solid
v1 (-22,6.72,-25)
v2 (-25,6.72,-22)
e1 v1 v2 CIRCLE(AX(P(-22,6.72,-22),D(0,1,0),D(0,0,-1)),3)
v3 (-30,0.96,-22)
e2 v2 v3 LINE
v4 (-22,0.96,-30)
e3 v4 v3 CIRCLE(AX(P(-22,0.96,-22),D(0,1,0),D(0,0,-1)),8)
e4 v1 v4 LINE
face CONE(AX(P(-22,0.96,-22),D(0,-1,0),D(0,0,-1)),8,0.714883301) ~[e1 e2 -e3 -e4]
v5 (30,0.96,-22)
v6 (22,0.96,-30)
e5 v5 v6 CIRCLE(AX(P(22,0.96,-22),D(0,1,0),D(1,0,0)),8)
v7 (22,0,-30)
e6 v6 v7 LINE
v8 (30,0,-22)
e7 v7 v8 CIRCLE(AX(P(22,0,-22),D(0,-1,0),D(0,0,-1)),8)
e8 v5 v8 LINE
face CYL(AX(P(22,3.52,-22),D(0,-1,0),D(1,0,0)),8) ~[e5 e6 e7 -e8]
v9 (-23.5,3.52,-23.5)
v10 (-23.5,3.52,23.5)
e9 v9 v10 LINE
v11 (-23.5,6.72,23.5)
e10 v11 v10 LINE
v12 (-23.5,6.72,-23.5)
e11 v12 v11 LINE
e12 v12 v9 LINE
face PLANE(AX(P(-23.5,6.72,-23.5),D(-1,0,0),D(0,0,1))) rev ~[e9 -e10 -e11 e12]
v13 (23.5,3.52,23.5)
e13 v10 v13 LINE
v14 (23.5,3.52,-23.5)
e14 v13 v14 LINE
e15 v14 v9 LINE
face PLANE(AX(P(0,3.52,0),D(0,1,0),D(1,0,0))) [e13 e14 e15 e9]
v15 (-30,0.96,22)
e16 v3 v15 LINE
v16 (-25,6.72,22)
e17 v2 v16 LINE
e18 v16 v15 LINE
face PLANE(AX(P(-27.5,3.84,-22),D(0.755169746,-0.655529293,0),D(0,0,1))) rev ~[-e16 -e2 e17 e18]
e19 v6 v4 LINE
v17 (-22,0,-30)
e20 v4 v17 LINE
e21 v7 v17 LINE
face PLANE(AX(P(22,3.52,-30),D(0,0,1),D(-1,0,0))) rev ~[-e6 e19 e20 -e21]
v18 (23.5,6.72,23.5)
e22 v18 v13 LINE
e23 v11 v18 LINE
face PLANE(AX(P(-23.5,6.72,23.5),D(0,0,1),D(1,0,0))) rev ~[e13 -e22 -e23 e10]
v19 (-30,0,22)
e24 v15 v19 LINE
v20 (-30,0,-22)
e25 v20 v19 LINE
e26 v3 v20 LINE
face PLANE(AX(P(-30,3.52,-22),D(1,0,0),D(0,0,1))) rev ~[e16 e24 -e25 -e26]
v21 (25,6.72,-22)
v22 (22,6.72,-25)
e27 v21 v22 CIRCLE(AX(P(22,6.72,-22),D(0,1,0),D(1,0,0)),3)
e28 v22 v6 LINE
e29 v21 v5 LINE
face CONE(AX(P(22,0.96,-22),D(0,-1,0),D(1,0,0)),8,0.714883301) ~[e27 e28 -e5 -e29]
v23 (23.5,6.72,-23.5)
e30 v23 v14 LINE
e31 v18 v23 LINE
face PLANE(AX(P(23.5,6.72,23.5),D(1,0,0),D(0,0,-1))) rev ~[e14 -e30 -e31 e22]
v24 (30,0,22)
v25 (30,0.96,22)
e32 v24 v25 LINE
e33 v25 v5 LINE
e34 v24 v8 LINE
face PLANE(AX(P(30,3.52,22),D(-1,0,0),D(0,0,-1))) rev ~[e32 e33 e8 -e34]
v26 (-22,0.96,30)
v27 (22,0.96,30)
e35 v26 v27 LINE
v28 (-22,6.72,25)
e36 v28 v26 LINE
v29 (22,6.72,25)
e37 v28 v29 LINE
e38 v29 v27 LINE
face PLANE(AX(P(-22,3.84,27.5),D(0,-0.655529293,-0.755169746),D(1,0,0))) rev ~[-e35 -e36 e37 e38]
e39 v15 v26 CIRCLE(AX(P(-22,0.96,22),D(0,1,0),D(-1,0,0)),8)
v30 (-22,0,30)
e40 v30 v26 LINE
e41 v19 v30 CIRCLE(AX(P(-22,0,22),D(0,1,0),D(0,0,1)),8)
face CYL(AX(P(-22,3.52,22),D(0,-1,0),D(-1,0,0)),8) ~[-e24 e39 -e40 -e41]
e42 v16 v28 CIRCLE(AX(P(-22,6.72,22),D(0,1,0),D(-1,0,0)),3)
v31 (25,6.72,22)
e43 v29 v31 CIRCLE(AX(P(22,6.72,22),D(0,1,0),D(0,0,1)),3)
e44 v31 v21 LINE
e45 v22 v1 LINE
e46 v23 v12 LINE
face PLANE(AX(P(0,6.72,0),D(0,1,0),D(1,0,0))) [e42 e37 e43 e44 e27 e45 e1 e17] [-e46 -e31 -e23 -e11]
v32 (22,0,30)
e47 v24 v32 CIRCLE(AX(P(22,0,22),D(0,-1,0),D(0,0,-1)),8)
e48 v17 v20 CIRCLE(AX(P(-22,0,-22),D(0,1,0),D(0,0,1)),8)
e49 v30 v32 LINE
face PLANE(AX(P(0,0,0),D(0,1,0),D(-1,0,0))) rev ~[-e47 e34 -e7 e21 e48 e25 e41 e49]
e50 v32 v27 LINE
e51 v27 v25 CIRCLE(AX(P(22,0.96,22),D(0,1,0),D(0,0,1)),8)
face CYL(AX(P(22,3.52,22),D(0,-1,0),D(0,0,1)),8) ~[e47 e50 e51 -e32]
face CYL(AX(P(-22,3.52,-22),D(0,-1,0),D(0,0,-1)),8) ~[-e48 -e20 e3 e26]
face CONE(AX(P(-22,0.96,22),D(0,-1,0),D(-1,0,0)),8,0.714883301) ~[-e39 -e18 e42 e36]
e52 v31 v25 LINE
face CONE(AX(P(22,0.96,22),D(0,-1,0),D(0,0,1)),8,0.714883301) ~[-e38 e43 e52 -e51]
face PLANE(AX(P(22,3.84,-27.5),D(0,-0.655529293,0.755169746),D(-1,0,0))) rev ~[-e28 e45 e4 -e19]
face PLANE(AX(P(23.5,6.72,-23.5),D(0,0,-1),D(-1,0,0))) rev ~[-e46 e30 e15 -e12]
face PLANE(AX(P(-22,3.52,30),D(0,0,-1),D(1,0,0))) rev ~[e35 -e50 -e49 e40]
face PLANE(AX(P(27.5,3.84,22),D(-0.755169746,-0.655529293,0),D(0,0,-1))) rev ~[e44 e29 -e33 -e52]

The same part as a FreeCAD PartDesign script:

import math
import FreeCAD as App
import Part
import Sketcher
from FreeCAD import Vector
Q = App.Units.Quantity


def edges_at(feature, points):
    """Names of the edges that pass closest to the given points."""
    edges = feature.Shape.Edges
    near = lambda p: min(range(len(edges)), key=lambda i: edges[i].distToShape(Part.Vertex(*p))[0])
    return sorted({f"Edge{near(p) + 1}" for p in points})


def add_polygon(sketch, points):
    """Adds a closed chain of lines whose ends are joined by coincident constraints."""
    first, n = sketch.GeometryCount, len(points)
    for a, b in zip(points, points[1:] + points[:1]):
        sketch.addGeometry(Part.LineSegment(App.Vector(*a, 0), App.Vector(*b, 0)), False)
    for i in range(n):
        sketch.addConstraint(Sketcher.Constraint("Coincident", first + i, 2, first + (i + 1) % n, 1))

doc = App.newDocument("Part")
body = doc.addObject("PartDesign::Body", "Body")

sketch1 = body.newObject("Sketcher::SketchObject", "Sketch")
sketch1.AttachmentSupport = (doc.getObject("XZ_Plane"), [""])
sketch1.MapMode = "FlatFace"
add_polygon(sketch1, [(-30, -30), (-30, 30), (30, 30), (30, -30)])
sketch1.addConstraint([
    Sketcher.Constraint("Vertical", 0),
    Sketcher.Constraint("Horizontal", 1),
    Sketcher.Constraint("Vertical", 2),
    Sketcher.Constraint("Horizontal", 3),
    Sketcher.Constraint("Symmetric", 0, 2, 2, 2, -1, 1),
    Sketcher.Constraint("Equal", 3, 0),
    Sketcher.Constraint("DistanceX", 1, 1, 1, 2, Q("60 mm")),
])
pad1 = body.newObject("PartDesign::Pad", "Pad")
pad1.Profile = sketch1
pad1.Length = 0.96
pad1.Reversed = True

sketch2 = body.newObject("Sketcher::SketchObject", "Sketch001")
sketch2.AttachmentSupport = (doc.getObject("XZ_Plane"), [""])
sketch2.MapMode = "FlatFace"
sketch2.AttachmentOffset = App.Placement(Vector(0, 0, -0.96), App.Rotation())
add_polygon(sketch2, [(30, 30), (30, -30), (-30, -30), (-30, 30)])
sketch2.addConstraint([
    Sketcher.Constraint("Vertical", 0),
    Sketcher.Constraint("Horizontal", 1),
    Sketcher.Constraint("Vertical", 2),
    Sketcher.Constraint("Horizontal", 3),
    Sketcher.Constraint("Symmetric", 0, 2, 2, 2, -1, 1),
    Sketcher.Constraint("Equal", 3, 0),
    Sketcher.Constraint("DistanceX", 1, 2, 1, 1, Q("60 mm")),
])
pad2 = body.newObject("PartDesign::Pad", "Pad001")
pad2.Profile = sketch2
pad2.Length = 1.92
pad2.Reversed = True

sketch3 = body.newObject("Sketcher::SketchObject", "Sketch002")
sketch3.AttachmentSupport = (doc.getObject("XZ_Plane"), [""])
sketch3.MapMode = "FlatFace"
sketch3.AttachmentOffset = App.Placement(Vector(0, 0, -2.88), App.Rotation())
add_polygon(sketch3, [(30, -30), (-30, -30), (-30, 30), (30, 30)])
sketch3.addConstraint([
    Sketcher.Constraint("Horizontal", 0),
    Sketcher.Constraint("Vertical", 1),
    Sketcher.Constraint("Horizontal", 2),
    Sketcher.Constraint("Vertical", 3),
    Sketcher.Constraint("Symmetric", 0, 2, 2, 2, -1, 1),
    Sketcher.Constraint("Equal", 2, 1),
    Sketcher.Constraint("DistanceX", 0, 2, 0, 1, Q("60 mm")),
])
pad3 = body.newObject("PartDesign::Pad", "Pad002")
pad3.Profile = sketch3
pad3.Length = 0.64
pad3.Reversed = True
doc.recompute()

fillet = body.newObject("PartDesign::Fillet", "Fillet")
fillet.Base = (pad3, edges_at(pad3, [
    (30, 1.76, 30),
    (-30, 1.76, 30),
    (-30, 1.76, -30),
    (30, 1.76, -30),
]))
fillet.Radius = 8

sketch4 = body.newObject("Sketcher::SketchObject", "Sketch003")
sketch4.AttachmentSupport = (doc.getObject("XZ_Plane"), [""])
sketch4.MapMode = "FlatFace"
sketch4.AttachmentOffset = App.Placement(Vector(0, 0, -3.52), App.Rotation())
sketch4.addGeometry([
    Part.ArcOfCircle(Part.Circle(Vector(-22, 22, 0), Vector(0, 0, 1), 8), math.radians(90), math.radians(180)),
    Part.LineSegment(Vector(-22, 30, 0), Vector(22, 30, 0)),
    Part.ArcOfCircle(Part.Circle(Vector(22, 22, 0), Vector(0, 0, 1), 8), math.radians(0), math.radians(90)),
    Part.LineSegment(Vector(30, 22, 0), Vector(30, -22, 0)),
    Part.ArcOfCircle(Part.Circle(Vector(22, -22, 0), Vector(0, 0, 1), 8), math.radians(-90), math.radians(0)),
    Part.LineSegment(Vector(22, -30, 0), Vector(-22, -30, 0)),
    Part.ArcOfCircle(Part.Circle(Vector(-22, -22, 0), Vector(0, 0, 1), 8), math.radians(180), math.radians(270)),
    Part.LineSegment(Vector(-30, -22, 0), Vector(-30, 22, 0)),
], False)
sketch4.addConstraint([
    Sketcher.Constraint("Tangent", 0, 1, 1, 1),
    Sketcher.Constraint("Tangent", 1, 2, 2, 2),
    Sketcher.Constraint("Tangent", 2, 1, 3, 1),
    Sketcher.Constraint("Tangent", 3, 2, 4, 2),
    Sketcher.Constraint("Tangent", 4, 1, 5, 1),
    Sketcher.Constraint("Tangent", 5, 2, 6, 2),
    Sketcher.Constraint("Tangent", 6, 1, 7, 1),
    Sketcher.Constraint("Tangent", 7, 2, 0, 2),
    Sketcher.Constraint("Horizontal", 1),
    Sketcher.Constraint("Vertical", 3),
    Sketcher.Constraint("Horizontal", 5),
    Sketcher.Constraint("Vertical", 7),
    Sketcher.Constraint("Equal", 0, 2),
    Sketcher.Constraint("Equal", 2, 4),
    Sketcher.Constraint("Equal", 4, 6),
    Sketcher.Constraint("Symmetric", 0, 3, 4, 3, -1, 1),
    Sketcher.Constraint("Equal", 5, 3),
    Sketcher.Constraint("Radius", 0, Q("8 mm")),
    Sketcher.Constraint("DistanceX", 1, 1, 1, 2, Q("44 mm")),
])
pad4 = body.newObject("PartDesign::Pad", "Pad003")
pad4.Profile = sketch4
pad4.Length = 3.2
pad4.Reversed = True

sketch5 = body.newObject("Sketcher::SketchObject", "Sketch004")
sketch5.AttachmentSupport = (doc.getObject("XZ_Plane"), [""])
sketch5.MapMode = "FlatFace"
sketch5.AttachmentOffset = App.Placement(Vector(0, 0, -6.72), App.Rotation())
add_polygon(sketch5, [(23.5, 23.5), (23.5, -23.5), (-23.5, -23.5), (-23.5, 23.5)])
sketch5.addConstraint([
    Sketcher.Constraint("Vertical", 0),
    Sketcher.Constraint("Horizontal", 1),
    Sketcher.Constraint("Vertical", 2),
    Sketcher.Constraint("Horizontal", 3),
    Sketcher.Constraint("Symmetric", 0, 2, 2, 2, -1, 1),
    Sketcher.Constraint("Equal", 3, 0),
    Sketcher.Constraint("DistanceX", 1, 2, 1, 1, Q("47 mm")),
])
pocket1 = body.newObject("PartDesign::Pocket", "Pocket")
pocket1.Profile = sketch5
pocket1.Length = 3.2
pocket1.Reversed = True
doc.recompute()

chamfer = body.newObject("PartDesign::Chamfer", "Chamfer")
chamfer.Base = (pocket1, edges_at(pocket1, [
    (0, 6.72, -30),
    (-27.657, 6.72, -27.657),
    (-30, 6.72, 0),
    (-27.657, 6.72, 27.657),
    (0, 6.72, 30),
    (27.657, 6.72, 27.657),
    (30, 6.72, 0),
    (27.657, 6.72, -27.657),
]))
chamfer.ChamferType = "Two distances"
chamfer.Size = 5
chamfer.Size2 = 5.76
chamfer.FlipDirection = True

doc.recompute()
